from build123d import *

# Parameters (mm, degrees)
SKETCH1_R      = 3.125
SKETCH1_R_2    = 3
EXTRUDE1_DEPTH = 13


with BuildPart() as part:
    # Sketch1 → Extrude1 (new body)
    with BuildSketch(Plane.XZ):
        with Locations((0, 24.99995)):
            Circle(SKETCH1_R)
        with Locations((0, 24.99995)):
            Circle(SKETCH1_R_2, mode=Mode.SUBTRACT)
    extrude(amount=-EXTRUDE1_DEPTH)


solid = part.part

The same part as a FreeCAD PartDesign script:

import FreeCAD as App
import Part
import Sketcher

V = App.Vector

doc = App.newDocument("Part")
body = doc.addObject("PartDesign::Body", "Body")

sketch1 = body.newObject("Sketcher::SketchObject", "Sketch")
sketch1.AttachmentSupport = (doc.getObject("XZ_Plane"), [""])
sketch1.MapMode = "FlatFace"
sketch1.addGeometry(Part.Circle(V(0, 25, 0), V(0, 0, 1), 3.1), False)
sketch1.addGeometry(Part.Circle(V(0, 25, 0), V(0, 0, 1), 3), False)
sketch1.addConstraint(Sketcher.Constraint("Coincident", 1, 3, 0, 3))
sketch1.addConstraint(Sketcher.Constraint("PointOnObject", 0, 3, -2))
sketch1.addConstraint(Sketcher.Constraint("Diameter", 1, 6.0))
sketch1.addConstraint(Sketcher.Constraint("Diameter", 0, 6.25))
sketch1.addConstraint(Sketcher.Constraint("DistanceY", -1, 1, 0, 3, 24.99995))
pad1 = body.newObject("PartDesign::Pad", "Pad")
pad1.Profile = sketch1
pad1.Length = 13
pad1.Reversed = True

doc.recompute()
